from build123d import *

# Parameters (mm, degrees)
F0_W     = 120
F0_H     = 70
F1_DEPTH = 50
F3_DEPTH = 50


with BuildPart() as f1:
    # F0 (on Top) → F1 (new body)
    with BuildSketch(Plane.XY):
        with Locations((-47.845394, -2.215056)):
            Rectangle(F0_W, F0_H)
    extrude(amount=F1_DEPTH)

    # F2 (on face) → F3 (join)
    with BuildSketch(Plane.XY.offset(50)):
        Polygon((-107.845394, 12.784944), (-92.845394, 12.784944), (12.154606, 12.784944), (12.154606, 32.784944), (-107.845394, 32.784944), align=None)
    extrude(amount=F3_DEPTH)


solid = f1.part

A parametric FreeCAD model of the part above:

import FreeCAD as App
import Part
import Sketcher
from FreeCAD import Vector
Q = App.Units.Quantity

doc = App.newDocument("Part")
body = doc.addObject("PartDesign::Body", "Body")

sketch1 = doc.addObject("Sketcher::SketchObject", "Sketch")
body.addObject(sketch1)
sketch1.AttachmentSupport = (doc.XY_Plane, [""])
sketch1.MapMode = "FlatFace"
sketch1.addGeometry(Part.LineSegment(Vector(-108, 33, 0), Vector(-108, -37, 0)), False)
sketch1.addGeometry(Part.LineSegment(Vector(-108, -37, 0), Vector(12, -37, 0)), False)
sketch1.addGeometry(Part.LineSegment(Vector(12, -37, 0), Vector(12, 33, 0)), False)
sketch1.addGeometry(Part.LineSegment(Vector(12, 33, 0), Vector(-108, 33, 0)), False)
sketch1.addConstraint(Sketcher.Constraint("Coincident", 0, 2, 1, 1))
sketch1.addConstraint(Sketcher.Constraint("Coincident", 1, 2, 2, 1))
sketch1.addConstraint(Sketcher.Constraint("Coincident", 2, 2, 3, 1))
sketch1.addConstraint(Sketcher.Constraint("Coincident", 3, 2, 0, 1))
sketch1.addConstraint(Sketcher.Constraint("Vertical", 0))
sketch1.addConstraint(Sketcher.Constraint("Horizontal", 1))
sketch1.addConstraint(Sketcher.Constraint("Vertical", 2))
sketch1.addConstraint(Sketcher.Constraint("Horizontal", 3))
sketch1.addConstraint(Sketcher.Constraint("DistanceX", 1, 1, 1, 2, Q("120 mm")))
sketch1.addConstraint(Sketcher.Constraint("DistanceY", 0, 2, 0, 1, Q("70 mm")))
sketch1.addConstraint(Sketcher.Constraint("DistanceX", 0, 2, -1, 1, Q("107.845394 mm")))
sketch1.addConstraint(Sketcher.Constraint("DistanceY", 0, 2, -1, 1, Q("37.215056 mm")))
pad1 = doc.addObject("PartDesign::Pad", "Pad")
body.addObject(pad1)
pad1.Profile = sketch1
pad1.Length = 50

sketch2 = doc.addObject("Sketcher::SketchObject", "Sketch001")
body.addObject(sketch2)
sketch2.AttachmentSupport = (doc.XY_Plane, [""])
sketch2.MapMode = "FlatFace"
sketch2.AttachmentOffset = App.Placement(Vector(0, 0, 50), App.Rotation())
sketch2.addGeometry(Part.LineSegment(Vector(-108, 13, 0), Vector(12, 13, 0)), False)
sketch2.addGeometry(Part.LineSegment(Vector(12, 13, 0), Vector(12, 33, 0)), False)
sketch2.addGeometry(Part.LineSegment(Vector(12, 33, 0), Vector(-108, 33, 0)), False)
sketch2.addGeometry(Part.LineSegment(Vector(-108, 33, 0), Vector(-108, 13, 0)), False)
sketch2.addConstraint(Sketcher.Constraint("Coincident", 0, 2, 1, 1))
sketch2.addConstraint(Sketcher.Constraint("Coincident", 1, 2, 2, 1))
sketch2.addConstraint(Sketcher.Constraint("Coincident", 2, 2, 3, 1))
sketch2.addConstraint(Sketcher.Constraint("Coincident", 3, 2, 0, 1))
sketch2.addConstraint(Sketcher.Constraint("Horizontal", 0))
sketch2.addConstraint(Sketcher.Constraint("Vertical", 1))
sketch2.addConstraint(Sketcher.Constraint("Horizontal", 2))
sketch2.addConstraint(Sketcher.Constraint("Vertical", 3))
sketch2.addConstraint(Sketcher.Constraint("DistanceX", 0, 1, 0, 2, Q("120 mm")))
sketch2.addConstraint(Sketcher.Constraint("DistanceY", 1, 1, 1, 2, Q("20 mm")))
sketch2.addConstraint(Sketcher.Constraint("DistanceX", -1, 1, 0, 2, Q("12.154606 mm")))
sketch2.addConstraint(Sketcher.Constraint("DistanceY", -1, 1, 0, 2, Q("12.784944 mm")))
pad2 = doc.addObject("PartDesign::Pad", "Pad001")
body.addObject(pad2)
pad2.Profile = sketch2
pad2.Length = 50

doc.recompute()
